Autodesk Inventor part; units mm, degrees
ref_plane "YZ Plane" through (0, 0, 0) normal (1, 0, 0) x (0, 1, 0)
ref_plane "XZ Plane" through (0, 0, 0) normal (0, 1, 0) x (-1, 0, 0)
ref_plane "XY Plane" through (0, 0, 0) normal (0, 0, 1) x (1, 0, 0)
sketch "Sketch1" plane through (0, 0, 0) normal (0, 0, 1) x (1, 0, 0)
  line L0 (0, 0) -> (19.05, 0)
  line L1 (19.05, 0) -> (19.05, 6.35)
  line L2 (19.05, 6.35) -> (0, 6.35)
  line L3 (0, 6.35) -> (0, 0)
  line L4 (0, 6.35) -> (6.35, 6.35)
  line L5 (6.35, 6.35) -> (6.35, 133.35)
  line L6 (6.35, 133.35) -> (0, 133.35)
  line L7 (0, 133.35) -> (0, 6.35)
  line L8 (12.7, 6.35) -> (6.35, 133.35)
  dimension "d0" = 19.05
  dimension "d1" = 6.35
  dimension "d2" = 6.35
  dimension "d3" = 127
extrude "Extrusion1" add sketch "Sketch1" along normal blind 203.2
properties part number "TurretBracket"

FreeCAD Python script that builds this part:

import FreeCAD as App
import Part
import Sketcher
Q = App.Units.Quantity


def add_polygon(sketch, points):
    """Adds a closed chain of lines whose ends are joined by coincident constraints."""
    first, n = sketch.GeometryCount, len(points)
    for a, b in zip(points, points[1:] + points[:1]):
        sketch.addGeometry(Part.LineSegment(App.Vector(*a, 0), App.Vector(*b, 0)), False)
    for i in range(n):
        sketch.addConstraint(Sketcher.Constraint("Coincident", first + i, 2, first + (i + 1) % n, 1))

doc = App.newDocument("Part")
params = doc.addObject("Spreadsheet::Sheet", "Params")
for row, (alias, value) in enumerate([
    ("sketch1_width", "0.75 in"),
    ("sketch1_width2", "0.25 in"),
    ("pad1_length", "8 in"),
], start=1):
    params.set(f"A{row}", alias)
    params.set(f"B{row}", "=" + value)
    params.setAlias(f"B{row}", alias)

body = doc.addObject("PartDesign::Body", "Body")

sketch1 = body.newObject("Sketcher::SketchObject", "Sketch")
sketch1.AttachmentSupport = (doc.getObject("XY_Plane"), [""])
sketch1.MapMode = "FlatFace"
add_polygon(sketch1, [(0, 0), (19.05, 0), (19.05, 6.35), (12.7, 6.35), (6.35, 133.35), (0, 133.35)])
sketch1.addConstraint([
    Sketcher.Constraint("Horizontal", 0),
    Sketcher.Constraint("Vertical", 1),
    Sketcher.Constraint("Horizontal", 2),
    Sketcher.Constraint("Horizontal", 4),
    Sketcher.Constraint("Vertical", 5),
    Sketcher.Constraint("Coincident", 5, 2, -1, 1),
    Sketcher.Constraint("Equal", 2, 4),
    Sketcher.Constraint("Equal", 4, 1),
    Sketcher.Constraint("DistanceY", 2, 2, 3, 2, Q("5 in")),
    Sketcher.Constraint("DistanceX", 0, 1, 0, 2, Q("0.75 in")),
    Sketcher.Constraint("DistanceX", 2, 2, 2, 1, Q("0.25 in")),
])
sketch1.setExpression("Constraints[15]", "Params.sketch1_width")
sketch1.setExpression("Constraints[16]", "Params.sketch1_width2")
pad1 = body.newObject("PartDesign::Pad", "Pad")
pad1.Profile = sketch1
pad1.setExpression("Length", "Params.pad1_length")

doc.recompute()
